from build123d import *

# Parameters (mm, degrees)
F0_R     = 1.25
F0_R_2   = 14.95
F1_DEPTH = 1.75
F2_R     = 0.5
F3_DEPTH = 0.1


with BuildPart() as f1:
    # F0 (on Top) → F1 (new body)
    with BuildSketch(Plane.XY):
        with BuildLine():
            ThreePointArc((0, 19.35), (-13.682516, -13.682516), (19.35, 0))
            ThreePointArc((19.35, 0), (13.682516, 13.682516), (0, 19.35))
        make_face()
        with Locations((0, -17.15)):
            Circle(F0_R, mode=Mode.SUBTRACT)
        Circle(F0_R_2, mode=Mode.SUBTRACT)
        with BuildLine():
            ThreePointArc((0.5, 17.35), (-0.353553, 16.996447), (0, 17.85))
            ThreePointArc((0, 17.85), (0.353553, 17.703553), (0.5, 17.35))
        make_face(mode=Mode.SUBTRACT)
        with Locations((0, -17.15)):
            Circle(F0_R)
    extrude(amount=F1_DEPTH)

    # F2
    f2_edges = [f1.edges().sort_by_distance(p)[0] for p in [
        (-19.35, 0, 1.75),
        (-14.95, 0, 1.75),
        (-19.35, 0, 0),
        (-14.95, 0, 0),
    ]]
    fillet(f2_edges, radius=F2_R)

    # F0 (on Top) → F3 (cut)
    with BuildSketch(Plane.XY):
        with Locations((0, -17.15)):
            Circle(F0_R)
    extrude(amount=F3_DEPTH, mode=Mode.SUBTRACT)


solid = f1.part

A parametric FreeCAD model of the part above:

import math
import FreeCAD as App
import Part
import Sketcher
Q = App.Units.Quantity


def edges_at(feature, points):
    """Names of the edges that pass closest to the given points."""
    edges = feature.Shape.Edges
    near = lambda p: min(range(len(edges)), key=lambda i: edges[i].distToShape(Part.Vertex(*p))[0])
    return sorted({f"Edge{near(p) + 1}" for p in points})

doc = App.newDocument("Part")
params = doc.addObject("Spreadsheet::Sheet", "Params")
for row, (alias, value) in enumerate([
    ("sketch1_diameter", "29.9 mm"),
    ("sketch1_radius", "0.500001 mm"),
    ("sketch1_radius2", "19.35 mm"),
    ("pad1_length", "1.75 mm"),
    ("fillet_radius", "0.5 mm"),
    ("sketch2_diameter", "2.5 mm"),
    ("pocket1_length", "0.1 mm"),
], start=1):
    params.set(f"A{row}", alias)
    params.set(f"B{row}", "=" + value)
    params.setAlias(f"B{row}", alias)

body = doc.addObject("PartDesign::Body", "Body")

# Sketch on XY plane
sketch1 = body.newObject("Sketcher::SketchObject", "Sketch")
sketch1.AttachmentSupport = (doc.getObject("XY_Plane"), [""])
sketch1.MapMode = "FlatFace"
sketch1.addGeometry([
    Part.ArcOfCircle(Part.Circle(App.Vector(0, 0, 0), App.Vector(0, 0, 1), 19.35), math.radians(90), math.radians(360)),  # 0
    Part.ArcOfCircle(Part.Circle(App.Vector(-0.000001, -0.000001, 0), App.Vector(0, 0, 1), 19.350001), math.radians(0.000002), math.radians(89.999998)),  # 1
    Part.Circle(App.Vector(0, 0, 0), App.Vector(0, 0, 1), 14.95),  # 2
    Part.ArcOfCircle(Part.Circle(App.Vector(-0.000001, 17.349999, 0), App.Vector(0, 0, 1), 0.500001), math.radians(0.000153), math.radians(89.999847)),  # 3
    Part.ArcOfCircle(Part.Circle(App.Vector(0, 17.35, 0), App.Vector(0, 0, 1), 0.5), math.radians(90.000026), math.radians(359.999974)),  # 4
], False)
sketch1.addConstraint([
    Sketcher.Constraint("Tangent", 0, 1, 1, 2),
    Sketcher.Constraint("Coincident", 1, 1, 0, 2),
    Sketcher.Constraint("Coincident", 3, 1, 4, 2),
    Sketcher.Constraint("Coincident", 4, 1, 3, 2),
    Sketcher.Constraint("Coincident", 0, 3, -1, 1),
    Sketcher.Constraint("Coincident", 2, 3, -1, 1),
    Sketcher.Constraint("Equal", 3, 4),
    Sketcher.Constraint("PointOnObject", 3, 3, -2),
    Sketcher.Constraint("PointOnObject", 0, 1, -2),
    Sketcher.Constraint("PointOnObject", 1, 1, -1),
    Sketcher.Constraint("PointOnObject", 4, 1, -2),
    Sketcher.Constraint("Horizontal", 4, 3, 3, 1),
    Sketcher.Constraint("Diameter", 2, Q("29.9 mm")),
    Sketcher.Constraint("Radius", 3, Q("0.500001 mm")),
    Sketcher.Constraint("Radius", 0, Q("19.35 mm")),
    Sketcher.Constraint("DistanceY", 4, 3, 0, 1, Q("2 mm")),
])
sketch1.setExpression("Constraints[12]", "Params.sketch1_diameter")
sketch1.setExpression("Constraints[13]", "Params.sketch1_radius")
sketch1.setExpression("Constraints[14]", "Params.sketch1_radius2")
pad1 = body.newObject("PartDesign::Pad", "Pad")
pad1.Profile = sketch1
pad1.setExpression("Length", "Params.pad1_length")
doc.recompute()

fillet = body.newObject("PartDesign::Fillet", "Fillet")
fillet.Base = (pad1, edges_at(pad1, [
    (-13.683, -13.683, 1.75),
    (-14.95, 0, 1.75),
    (-13.683, -13.683, 0),
    (-14.95, 0, 0),
]))
fillet.setExpression("Radius", "Params.fillet_radius")

# Sketch on XY plane
sketch2 = body.newObject("Sketcher::SketchObject", "Sketch001")
sketch2.AttachmentSupport = (doc.getObject("XY_Plane"), [""])
sketch2.MapMode = "FlatFace"
sketch2.addGeometry(Part.Circle(App.Vector(0, -17.15, 0), App.Vector(0, 0, 1), 1.25), False)
sketch2.addConstraint([
    Sketcher.Constraint("PointOnObject", 0, 3, -2),
    Sketcher.Constraint("Diameter", 0, Q("2.5 mm")),
    Sketcher.Constraint("DistanceY", 0, 3, -1, 1, Q("17.15 mm")),
])
sketch2.setExpression("Constraints[1]", "Params.sketch2_diameter")
pocket1 = body.newObject("PartDesign::Pocket", "Pocket")
pocket1.Profile = sketch2
pocket1.setExpression("Length", "Params.pocket1_length")
pocket1.Reversed = True

doc.recompute()
